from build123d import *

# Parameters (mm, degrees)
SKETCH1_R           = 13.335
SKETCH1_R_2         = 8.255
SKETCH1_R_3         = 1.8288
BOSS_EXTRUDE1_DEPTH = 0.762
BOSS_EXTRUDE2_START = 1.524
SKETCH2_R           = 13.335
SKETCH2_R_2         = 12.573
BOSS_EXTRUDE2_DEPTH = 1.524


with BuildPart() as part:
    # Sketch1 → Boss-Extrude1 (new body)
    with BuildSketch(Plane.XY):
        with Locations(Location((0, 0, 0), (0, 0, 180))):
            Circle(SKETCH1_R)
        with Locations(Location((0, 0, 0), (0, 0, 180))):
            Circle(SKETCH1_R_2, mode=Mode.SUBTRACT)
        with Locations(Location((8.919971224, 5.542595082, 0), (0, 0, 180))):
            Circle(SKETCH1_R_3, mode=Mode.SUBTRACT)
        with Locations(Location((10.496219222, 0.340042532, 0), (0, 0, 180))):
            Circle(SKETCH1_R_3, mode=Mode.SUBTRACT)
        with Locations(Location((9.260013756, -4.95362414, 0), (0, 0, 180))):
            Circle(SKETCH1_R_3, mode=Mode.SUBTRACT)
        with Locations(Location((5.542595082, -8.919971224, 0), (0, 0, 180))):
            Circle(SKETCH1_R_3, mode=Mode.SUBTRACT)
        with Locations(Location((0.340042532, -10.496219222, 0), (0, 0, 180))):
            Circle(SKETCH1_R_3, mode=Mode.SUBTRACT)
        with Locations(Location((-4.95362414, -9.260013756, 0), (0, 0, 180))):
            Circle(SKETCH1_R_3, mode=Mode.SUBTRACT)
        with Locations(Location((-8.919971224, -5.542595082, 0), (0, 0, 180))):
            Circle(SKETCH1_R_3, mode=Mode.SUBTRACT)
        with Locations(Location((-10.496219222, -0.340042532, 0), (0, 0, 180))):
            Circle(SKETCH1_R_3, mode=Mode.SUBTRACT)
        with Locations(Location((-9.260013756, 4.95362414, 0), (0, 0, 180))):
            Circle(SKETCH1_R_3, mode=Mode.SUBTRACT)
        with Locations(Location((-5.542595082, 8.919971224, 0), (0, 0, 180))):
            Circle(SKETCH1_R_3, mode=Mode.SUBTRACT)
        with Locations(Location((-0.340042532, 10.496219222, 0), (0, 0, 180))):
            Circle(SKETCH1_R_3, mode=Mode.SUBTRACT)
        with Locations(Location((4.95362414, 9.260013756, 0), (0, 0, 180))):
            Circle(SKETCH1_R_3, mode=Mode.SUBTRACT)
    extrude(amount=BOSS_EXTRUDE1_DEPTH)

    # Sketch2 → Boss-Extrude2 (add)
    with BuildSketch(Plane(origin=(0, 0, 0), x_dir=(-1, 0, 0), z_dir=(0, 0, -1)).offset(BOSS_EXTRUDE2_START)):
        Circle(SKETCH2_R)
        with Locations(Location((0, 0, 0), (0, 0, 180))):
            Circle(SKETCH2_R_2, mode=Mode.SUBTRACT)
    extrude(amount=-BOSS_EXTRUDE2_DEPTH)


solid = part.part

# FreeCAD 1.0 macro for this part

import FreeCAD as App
import Part
import Sketcher

V = App.Vector
Q = App.Units.Quantity

doc = App.newDocument("Part")
body = doc.addObject("PartDesign::Body", "Body")

sketch1 = doc.addObject("Sketcher::SketchObject", "Sketch")
body.addObject(sketch1)
sketch1.AttachmentSupport = (doc.XY_Plane, [""])
sketch1.MapMode = "FlatFace"
sketch1.addGeometry(Part.Circle(V(0, 0, 0), V(0, 0, 1), 13.3), False)
sketch1.addGeometry(Part.Circle(V(5, 9.3, 0), V(0, 0, 1), 1.8), False)
sketch1.addGeometry(Part.Circle(V(8.9, 5.5, 0), V(0, 0, 1), 1.8), False)
sketch1.addGeometry(Part.Circle(V(10.5, 0.3, 0), V(0, 0, 1), 1.8), False)
sketch1.addGeometry(Part.Circle(V(-0.3, 10.5, 0), V(0, 0, 1), 1.8), False)
sketch1.addGeometry(Part.Circle(V(-5.5, 8.9, 0), V(0, 0, 1), 1.8), False)
sketch1.addGeometry(Part.Circle(V(-9.3, 5, 0), V(0, 0, 1), 1.8), False)
sketch1.addGeometry(Part.Circle(V(9.3, -5, 0), V(0, 0, 1), 1.8), False)
sketch1.addGeometry(Part.Circle(V(5.5, -8.9, 0), V(0, 0, 1), 1.8), False)
sketch1.addGeometry(Part.Circle(V(0.3, -10.5, 0), V(0, 0, 1), 1.8), False)
sketch1.addGeometry(Part.Circle(V(0, 0, 0), V(0, 0, 1), 8.3), False)
sketch1.addGeometry(Part.Circle(V(-10.5, -0.3, 0), V(0, 0, 1), 1.8), False)
sketch1.addGeometry(Part.Circle(V(-8.9, -5.5, 0), V(0, 0, 1), 1.8), False)
sketch1.addGeometry(Part.Circle(V(-5, -9.3, 0), V(0, 0, 1), 1.8), False)
sketch1.addConstraint(Sketcher.Constraint("Coincident", 0, 3, -1, 1))
sketch1.addConstraint(Sketcher.Constraint("Coincident", 10, 3, -1, 1))
sketch1.addConstraint(Sketcher.Constraint("Equal", 1, 2))
sketch1.addConstraint(Sketcher.Constraint("Equal", 2, 3))
sketch1.addConstraint(Sketcher.Constraint("Equal", 3, 4))
sketch1.addConstraint(Sketcher.Constraint("Equal", 4, 5))
sketch1.addConstraint(Sketcher.Constraint("Equal", 5, 6))
sketch1.addConstraint(Sketcher.Constraint("Equal", 6, 7))
sketch1.addConstraint(Sketcher.Constraint("Equal", 7, 8))
sketch1.addConstraint(Sketcher.Constraint("Equal", 8, 9))
sketch1.addConstraint(Sketcher.Constraint("Equal", 9, 11))
sketch1.addConstraint(Sketcher.Constraint("Equal", 11, 12))
sketch1.addConstraint(Sketcher.Constraint("Equal", 12, 13))
sketch1.addConstraint(Sketcher.Constraint("Symmetric", 6, 3, 7, 3, -1, 1))
sketch1.addConstraint(Sketcher.Constraint("Symmetric", 5, 3, 8, 3, -1, 1))
sketch1.addConstraint(Sketcher.Constraint("Symmetric", 4, 3, 9, 3, -1, 1))
sketch1.addConstraint(Sketcher.Constraint("Symmetric", 3, 3, 11, 3, -1, 1))
sketch1.addConstraint(Sketcher.Constraint("Symmetric", 2, 3, 12, 3, -1, 1))
sketch1.addConstraint(Sketcher.Constraint("Symmetric", 1, 3, 13, 3, -1, 1))
sketch1.addConstraint(Sketcher.Constraint("Diameter", 0, Q("1.05 in")))
sketch1.addConstraint(Sketcher.Constraint("Diameter", 10, Q("0.65 in")))
sketch1.addConstraint(Sketcher.Constraint("Diameter", 1, Q("0.144 in")))
sketch1.addConstraint(Sketcher.Constraint("DistanceX", -1, 1, 2, 3, Q("8.919971 mm")))
sketch1.addConstraint(Sketcher.Constraint("DistanceX", -1, 1, 3, 3, Q("10.496219 mm")))
sketch1.addConstraint(Sketcher.Constraint("DistanceY", -1, 1, 4, 3, Q("10.496219 mm")))
sketch1.addConstraint(Sketcher.Constraint("DistanceY", -1, 1, 5, 3, Q("8.919971 mm")))
sketch1.addConstraint(Sketcher.Constraint("DistanceY", 2, 3, 1, 3, Q("3.717419 mm")))
sketch1.addConstraint(Sketcher.Constraint("DistanceY", 3, 3, 1, 3, Q("8.919971 mm")))
sketch1.addConstraint(Sketcher.Constraint("DistanceX", 4, 3, 3, 3, Q("10.836262 mm")))
sketch1.addConstraint(Sketcher.Constraint("DistanceX", 5, 3, 1, 3, Q("10.496219 mm")))
sketch1.addConstraint(Sketcher.Constraint("DistanceY", 3, 3, 5, 3, Q("8.579929 mm")))
sketch1.addConstraint(Sketcher.Constraint("DistanceX", 6, 3, 5, 3, Q("3.717419 mm")))
sketch1.addConstraint(Sketcher.Constraint("DistanceX", 6, 3, 4, 3, Q("8.919971 mm")))
sketch1.addConstraint(Sketcher.Constraint("DistanceY", 6, 3, 1, 3, Q("4.30639 mm")))
pad1 = doc.addObject("PartDesign::Pad", "Pad")
body.addObject(pad1)
pad1.Profile = sketch1
pad1.Length = Q("0.03 in")

sketch2 = doc.addObject("Sketcher::SketchObject", "Sketch001")
body.addObject(sketch2)
sketch2.AttachmentSupport = (doc.XY_Plane, [""])
sketch2.MapMode = "FlatFace"
sketch2.AttachmentOffset = App.Placement(V(0, 0, -0.06 * 25.4), App.Rotation())
sketch2.addGeometry(Part.Circle(V(0, 0, 0), V(0, 0, 1), 13), False)
sketch2.addGeometry(Part.Circle(V(0, 0, 0), V(0, 0, 1), 13), False)
sketch2.addConstraint(Sketcher.Constraint("Coincident", 0, 3, -1, 1))
sketch2.addConstraint(Sketcher.Constraint("Coincident", 1, 3, -1, 1))
sketch2.addConstraint(Sketcher.Constraint("Diameter", 0, Q("1.05 in")))
sketch2.addConstraint(Sketcher.Constraint("Diameter", 1, Q("0.99 in")))
pad2 = doc.addObject("PartDesign::Pad", "Pad001")
body.addObject(pad2)
pad2.Profile = sketch2
pad2.Length = Q("0.06 in")

doc.recompute()
